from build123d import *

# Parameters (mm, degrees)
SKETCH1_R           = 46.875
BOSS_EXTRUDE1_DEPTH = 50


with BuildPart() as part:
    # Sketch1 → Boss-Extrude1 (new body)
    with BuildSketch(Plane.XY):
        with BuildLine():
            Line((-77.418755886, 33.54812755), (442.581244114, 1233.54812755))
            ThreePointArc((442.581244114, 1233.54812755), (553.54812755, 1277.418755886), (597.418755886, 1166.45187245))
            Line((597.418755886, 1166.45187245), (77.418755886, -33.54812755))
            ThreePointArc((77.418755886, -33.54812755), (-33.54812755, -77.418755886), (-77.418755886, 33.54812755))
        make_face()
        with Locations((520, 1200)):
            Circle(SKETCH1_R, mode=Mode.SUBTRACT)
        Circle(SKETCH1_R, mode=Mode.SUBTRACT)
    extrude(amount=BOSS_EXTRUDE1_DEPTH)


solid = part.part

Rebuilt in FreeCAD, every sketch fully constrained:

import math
import FreeCAD as App
import Part
import Sketcher
from FreeCAD import Vector

doc = App.newDocument("Part")
body = doc.addObject("PartDesign::Body", "Body")

# Sketch on XY plane
sketch1 = body.newObject("Sketcher::SketchObject", "Sketch")
sketch1.AttachmentSupport = (doc.getObject("XY_Plane"), [""])
sketch1.MapMode = "FlatFace"
sketch1.addGeometry([
    Part.LineSegment(Vector(443, 1234, 0), Vector(-77, 34, 0)),  # 0
    Part.ArcOfCircle(Part.Circle(Vector(0, 0, 0), Vector(0, 0, 1), 84), math.radians(157), math.radians(337)),  # 1
    Part.LineSegment(Vector(77, -34, 0), Vector(597, 1166, 0)),  # 2
    Part.ArcOfCircle(Part.Circle(Vector(520, 1200, 0), Vector(0, 0, 1), 84), math.radians(-23), math.radians(157)),  # 3
    Part.Circle(Vector(0, 0, 0), Vector(0, 0, 1), 47),  # 4
    Part.Circle(Vector(520, 1200, 0), Vector(0, 0, 1), 47),  # 5
], False)
sketch1.addConstraint([
    Sketcher.Constraint("Tangent", 0, 2, 1, 1),
    Sketcher.Constraint("Tangent", 1, 2, 2, 1),
    Sketcher.Constraint("Tangent", 2, 2, 3, 1),
    Sketcher.Constraint("Tangent", 3, 2, 0, 1),
    Sketcher.Constraint("Coincident", 1, 3, -1, 1),
    Sketcher.Constraint("Coincident", 4, 3, -1, 1),
    Sketcher.Constraint("Coincident", 5, 3, 3, 3),
    Sketcher.Constraint("Equal", 1, 3),
    Sketcher.Constraint("Equal", 4, 5),
    Sketcher.Constraint("Diameter", 4, 93.75),
    Sketcher.Constraint("DistanceX", -1, 1, 3, 3, 520.0),
    Sketcher.Constraint("DistanceY", -1, 1, 3, 3, 1200.0),
    Sketcher.Constraint("Radius", 1, 84.375),
])
pad1 = body.newObject("PartDesign::Pad", "Pad")
pad1.Profile = sketch1
pad1.Length = 50

doc.recompute()
